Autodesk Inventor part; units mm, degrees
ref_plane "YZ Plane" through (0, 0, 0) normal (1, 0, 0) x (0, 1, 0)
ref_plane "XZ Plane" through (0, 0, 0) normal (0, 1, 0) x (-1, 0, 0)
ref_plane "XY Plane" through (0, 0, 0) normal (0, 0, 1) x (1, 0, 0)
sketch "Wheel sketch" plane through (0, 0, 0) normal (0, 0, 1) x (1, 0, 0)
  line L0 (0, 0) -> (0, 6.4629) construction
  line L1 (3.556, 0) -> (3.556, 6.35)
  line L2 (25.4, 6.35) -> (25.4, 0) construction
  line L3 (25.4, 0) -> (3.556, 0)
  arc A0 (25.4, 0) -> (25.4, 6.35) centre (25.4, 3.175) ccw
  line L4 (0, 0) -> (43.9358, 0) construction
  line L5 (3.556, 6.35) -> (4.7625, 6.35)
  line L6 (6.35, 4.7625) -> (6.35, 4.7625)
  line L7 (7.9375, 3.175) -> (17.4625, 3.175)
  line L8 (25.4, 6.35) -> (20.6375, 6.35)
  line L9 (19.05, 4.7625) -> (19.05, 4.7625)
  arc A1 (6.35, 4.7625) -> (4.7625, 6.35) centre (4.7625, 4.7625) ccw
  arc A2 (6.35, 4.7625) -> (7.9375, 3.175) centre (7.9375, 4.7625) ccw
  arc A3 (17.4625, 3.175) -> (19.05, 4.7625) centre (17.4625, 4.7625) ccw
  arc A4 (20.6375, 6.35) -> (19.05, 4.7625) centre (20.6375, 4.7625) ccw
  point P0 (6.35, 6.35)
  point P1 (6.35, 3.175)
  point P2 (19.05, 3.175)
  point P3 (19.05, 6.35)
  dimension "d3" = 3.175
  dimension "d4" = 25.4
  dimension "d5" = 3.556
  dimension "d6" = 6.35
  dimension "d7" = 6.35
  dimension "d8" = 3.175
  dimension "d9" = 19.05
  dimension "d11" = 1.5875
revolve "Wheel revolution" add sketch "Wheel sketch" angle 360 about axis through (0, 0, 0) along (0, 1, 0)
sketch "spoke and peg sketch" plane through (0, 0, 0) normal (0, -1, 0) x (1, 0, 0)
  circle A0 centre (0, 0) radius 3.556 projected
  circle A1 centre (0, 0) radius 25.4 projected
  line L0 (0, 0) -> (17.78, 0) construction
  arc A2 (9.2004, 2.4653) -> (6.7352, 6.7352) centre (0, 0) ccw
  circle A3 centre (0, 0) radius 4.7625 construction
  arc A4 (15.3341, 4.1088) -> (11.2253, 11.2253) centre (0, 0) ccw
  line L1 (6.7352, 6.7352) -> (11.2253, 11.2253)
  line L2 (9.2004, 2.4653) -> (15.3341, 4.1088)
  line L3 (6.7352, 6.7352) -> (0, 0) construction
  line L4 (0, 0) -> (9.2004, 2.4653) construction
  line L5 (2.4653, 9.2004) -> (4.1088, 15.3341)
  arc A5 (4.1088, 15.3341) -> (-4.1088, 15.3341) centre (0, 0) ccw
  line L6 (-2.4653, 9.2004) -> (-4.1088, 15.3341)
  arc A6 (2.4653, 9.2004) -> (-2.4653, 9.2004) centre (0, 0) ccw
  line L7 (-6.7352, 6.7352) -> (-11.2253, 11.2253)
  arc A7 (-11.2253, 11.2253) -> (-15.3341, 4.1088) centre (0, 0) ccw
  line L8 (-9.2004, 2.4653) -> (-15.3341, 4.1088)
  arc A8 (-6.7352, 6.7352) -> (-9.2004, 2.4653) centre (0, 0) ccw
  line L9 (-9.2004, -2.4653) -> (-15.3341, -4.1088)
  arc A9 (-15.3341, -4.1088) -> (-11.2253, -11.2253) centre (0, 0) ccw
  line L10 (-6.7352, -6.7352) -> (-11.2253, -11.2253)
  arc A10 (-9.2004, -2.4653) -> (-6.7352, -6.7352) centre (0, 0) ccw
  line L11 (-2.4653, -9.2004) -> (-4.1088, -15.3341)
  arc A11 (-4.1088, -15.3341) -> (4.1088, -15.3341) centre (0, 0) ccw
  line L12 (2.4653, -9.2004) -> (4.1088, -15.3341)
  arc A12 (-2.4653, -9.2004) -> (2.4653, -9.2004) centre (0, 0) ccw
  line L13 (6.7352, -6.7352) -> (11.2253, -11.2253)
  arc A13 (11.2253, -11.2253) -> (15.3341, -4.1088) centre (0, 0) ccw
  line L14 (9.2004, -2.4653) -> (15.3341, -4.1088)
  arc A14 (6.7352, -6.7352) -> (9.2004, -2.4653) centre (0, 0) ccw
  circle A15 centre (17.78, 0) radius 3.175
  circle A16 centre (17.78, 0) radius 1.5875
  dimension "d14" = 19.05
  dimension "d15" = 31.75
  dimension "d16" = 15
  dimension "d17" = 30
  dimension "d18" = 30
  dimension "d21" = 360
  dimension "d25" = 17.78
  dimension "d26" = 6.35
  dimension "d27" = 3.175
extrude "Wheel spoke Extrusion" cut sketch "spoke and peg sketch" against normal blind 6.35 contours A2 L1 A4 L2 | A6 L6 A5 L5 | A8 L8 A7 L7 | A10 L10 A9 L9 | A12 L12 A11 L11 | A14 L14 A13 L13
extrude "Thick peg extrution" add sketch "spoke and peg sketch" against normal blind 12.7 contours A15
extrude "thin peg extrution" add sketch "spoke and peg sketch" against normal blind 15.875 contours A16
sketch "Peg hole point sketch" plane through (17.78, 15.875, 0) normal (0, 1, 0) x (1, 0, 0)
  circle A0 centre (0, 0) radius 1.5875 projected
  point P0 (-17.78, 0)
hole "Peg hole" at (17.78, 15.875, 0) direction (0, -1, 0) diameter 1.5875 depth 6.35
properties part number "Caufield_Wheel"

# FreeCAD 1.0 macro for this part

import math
import FreeCAD as App
import Part
import Sketcher

V = App.Vector
Q = App.Units.Quantity

doc = App.newDocument("Part")
body = doc.addObject("PartDesign::Body", "Body")

sketch1 = body.newObject("Sketcher::SketchObject", "Sketch")
sketch1.AttachmentSupport = (doc.getObject("XY_Plane"), [""])
sketch1.MapMode = "FlatFace"
sketch1.addGeometry([
    Part.LineSegment(V(3.556, 6.35, 0), V(3.556, 0, 0)),
    Part.LineSegment(V(3.556, 0, 0), V(25.4, 0, 0)),
    Part.ArcOfCircle(Part.Circle(V(25.4, 3.175, 0), V(0, 0, 1), 3.175), math.radians(-90), math.radians(90)),
    Part.LineSegment(V(25.4, 6.35, 0), V(20.6375, 6.35, 0)),
    Part.ArcOfCircle(Part.Circle(V(20.6375, 4.7625, 0), V(0, 0, 1), 1.5875), math.radians(90), math.radians(180)),
    Part.ArcOfCircle(Part.Circle(V(17.4625, 4.7625, 0), V(0, 0, 1), 1.5875), math.radians(-90), math.radians(0)),
    Part.LineSegment(V(17.4625, 3.175, 0), V(7.9375, 3.175, 0)),
    Part.ArcOfCircle(Part.Circle(V(7.9375, 4.7625, 0), V(0, 0, 1), 1.5875), math.radians(180), math.radians(270)),
    Part.ArcOfCircle(Part.Circle(V(4.7625, 4.7625, 0), V(0, 0, 1), 1.5875), math.radians(0), math.radians(90)),
    Part.LineSegment(V(4.7625, 6.35, 0), V(3.556, 6.35, 0)),
], False)
sketch1.addConstraint([
    Sketcher.Constraint("Coincident", 0, 2, 1, 1),
    Sketcher.Constraint("Tangent", 1, 2, 2, 1),
    Sketcher.Constraint("Tangent", 2, 2, 3, 1),
    Sketcher.Constraint("Tangent", 3, 2, 4, 1),
    Sketcher.Constraint("Tangent", 4, 2, 5, 2),
    Sketcher.Constraint("Tangent", 5, 1, 6, 1),
    Sketcher.Constraint("Tangent", 6, 2, 7, 2),
    Sketcher.Constraint("Tangent", 7, 1, 8, 1),
    Sketcher.Constraint("Tangent", 8, 2, 9, 1),
    Sketcher.Constraint("Coincident", 9, 2, 0, 1),
    Sketcher.Constraint("Vertical", 0),
    Sketcher.Constraint("Horizontal", 1),
    Sketcher.Constraint("Horizontal", 3),
    Sketcher.Constraint("Horizontal", 6),
    Sketcher.Constraint("Horizontal", 9),
    Sketcher.Constraint("Equal", 4, 5),
    Sketcher.Constraint("Equal", 5, 7),
    Sketcher.Constraint("Equal", 7, 8),
    Sketcher.Constraint("PointOnObject", 0, 2, -1),
    Sketcher.Constraint("Horizontal", 4, 3, 5, 3),
    Sketcher.Constraint("Horizontal", 7, 3, 8, 3),
    Sketcher.Constraint("Horizontal", 2, 3, 5, 1),
    Sketcher.Constraint("DistanceX", -1, 1, 2, 3, Q("1 in")),
    Sketcher.Constraint("Radius", 2, Q("0.125 in")),
    Sketcher.Constraint("DistanceX", -1, 1, 0, 2, Q("0.14 in")),
    Sketcher.Constraint("DistanceX", -1, 1, 4, 2, Q("0.75 in")),
    Sketcher.Constraint("DistanceX", -1, 1, 7, 1, Q("0.25 in")),
])
revolution = body.newObject("PartDesign::Revolution", "Revolution")
revolution.Profile = sketch1
revolution.ReferenceAxis = (sketch1, ["V_Axis"])
revolution.Angle = 360

sketch2 = body.newObject("Sketcher::SketchObject", "Sketch001")
sketch2.AttachmentSupport = (doc.getObject("XZ_Plane"), [""])
sketch2.MapMode = "FlatFace"
sketch2.addGeometry([
    Part.ArcOfCircle(Part.Circle(V(0, 0, 0), V(0, 0, 1), 9.525011), math.radians(15.00035), math.radians(45)),
    Part.LineSegment(V(9.2004, 2.4653, 0), V(15.3341, 4.1088, 0)),
    Part.ArcOfCircle(Part.Circle(V(0, 0, 0), V(0, 0, 1), 15.874972), math.radians(15.00014), math.radians(45)),
    Part.LineSegment(V(11.2253, 11.2253, 0), V(6.7352, 6.7352, 0)),
    Part.ArcOfCircle(Part.Circle(V(0, 0, 0), V(0, 0, 1), 9.524971), math.radians(74.99965), math.radians(105.00035)),
    Part.LineSegment(V(2.4653, 9.2004, 0), V(4.1088, 15.3341, 0)),
    Part.ArcOfCircle(Part.Circle(V(0, 0, 0), V(0, 0, 1), 15.875039), math.radians(74.99986), math.radians(105.00014)),
    Part.LineSegment(V(-4.1088, 15.3341, 0), V(-2.4653, 9.2004, 0)),
    Part.ArcOfCircle(Part.Circle(V(0, 0, 0), V(0, 0, 1), 9.524971), math.radians(135), math.radians(164.99965)),
    Part.LineSegment(V(-6.7352, 6.7352, 0), V(-11.2253, 11.2253, 0)),
    Part.ArcOfCircle(Part.Circle(V(0, 0, 0), V(0, 0, 1), 15.875039), math.radians(135), math.radians(164.99986)),
    Part.LineSegment(V(-15.3341, 4.1088, 0), V(-9.2004, 2.4653, 0)),
    Part.ArcOfCircle(Part.Circle(V(0, 0, 0), V(0, 0, 1), 9.525011), math.radians(-164.99965), math.radians(-135)),
    Part.LineSegment(V(-9.2004, -2.4653, 0), V(-15.3341, -4.1088, 0)),
    Part.ArcOfCircle(Part.Circle(V(0, 0, 0), V(0, 0, 1), 15.874972), math.radians(-164.99986), math.radians(-135)),
    Part.LineSegment(V(-11.2253, -11.2253, 0), V(-6.7352, -6.7352, 0)),
    Part.ArcOfCircle(Part.Circle(V(0, 0, 0), V(0, 0, 1), 9.524971), math.radians(-105.00035), math.radians(-74.99965)),
    Part.LineSegment(V(-2.4653, -9.2004, 0), V(-4.1088, -15.3341, 0)),
    Part.ArcOfCircle(Part.Circle(V(0, 0, 0), V(0, 0, 1), 15.875039), math.radians(-105.00014), math.radians(-74.99986)),
    Part.LineSegment(V(4.1088, -15.3341, 0), V(2.4653, -9.2004, 0)),
    Part.ArcOfCircle(Part.Circle(V(0, 0, 0), V(0, 0, 1), 9.524971), math.radians(-45), math.radians(-15.00035)),
    Part.LineSegment(V(6.7352, -6.7352, 0), V(11.2253, -11.2253, 0)),
    Part.ArcOfCircle(Part.Circle(V(0, 0, 0), V(0, 0, 1), 15.875039), math.radians(-45), math.radians(-15.00014)),
    Part.LineSegment(V(15.3341, -4.1088, 0), V(9.2004, -2.4653, 0)),
], False)
sketch2.addConstraint([
    Sketcher.Constraint("Coincident", 0, 1, 1, 1),
    Sketcher.Constraint("Coincident", 1, 2, 2, 1),
    Sketcher.Constraint("Coincident", 2, 2, 3, 1),
    Sketcher.Constraint("Coincident", 3, 2, 0, 2),
    Sketcher.Constraint("Coincident", 4, 1, 5, 1),
    Sketcher.Constraint("Coincident", 5, 2, 6, 1),
    Sketcher.Constraint("Coincident", 6, 2, 7, 1),
    Sketcher.Constraint("Coincident", 7, 2, 4, 2),
    Sketcher.Constraint("Coincident", 8, 1, 9, 1),
    Sketcher.Constraint("Coincident", 9, 2, 10, 1),
    Sketcher.Constraint("Coincident", 10, 2, 11, 1),
    Sketcher.Constraint("Coincident", 11, 2, 8, 2),
    Sketcher.Constraint("Coincident", 12, 1, 13, 1),
    Sketcher.Constraint("Coincident", 13, 2, 14, 1),
    Sketcher.Constraint("Coincident", 14, 2, 15, 1),
    Sketcher.Constraint("Coincident", 15, 2, 12, 2),
    Sketcher.Constraint("Coincident", 16, 1, 17, 1),
    Sketcher.Constraint("Coincident", 17, 2, 18, 1),
    Sketcher.Constraint("Coincident", 18, 2, 19, 1),
    Sketcher.Constraint("Coincident", 19, 2, 16, 2),
    Sketcher.Constraint("Coincident", 20, 1, 21, 1),
    Sketcher.Constraint("Coincident", 21, 2, 22, 1),
    Sketcher.Constraint("Coincident", 22, 2, 23, 1),
    Sketcher.Constraint("Coincident", 23, 2, 20, 2),
    Sketcher.Constraint("Coincident", 0, 3, -1, 1),
    Sketcher.Constraint("Coincident", 2, 3, -1, 1),
    Sketcher.Constraint("Coincident", 4, 3, -1, 1),
    Sketcher.Constraint("Coincident", 6, 3, -1, 1),
    Sketcher.Constraint("Coincident", 8, 3, -1, 1),
    Sketcher.Constraint("Coincident", 10, 3, -1, 1),
    Sketcher.Constraint("Coincident", 12, 3, -1, 1),
    Sketcher.Constraint("Coincident", 14, 3, -1, 1),
    Sketcher.Constraint("Coincident", 16, 3, -1, 1),
    Sketcher.Constraint("Coincident", 18, 3, -1, 1),
    Sketcher.Constraint("Coincident", 20, 3, -1, 1),
    Sketcher.Constraint("Coincident", 22, 3, -1, 1),
    Sketcher.Constraint("Equal", 0, 4),
    Sketcher.Constraint("Equal", 2, 6),
    Sketcher.Constraint("Equal", 4, 8),
    Sketcher.Constraint("Equal", 6, 10),
    Sketcher.Constraint("Equal", 8, 12),
    Sketcher.Constraint("Equal", 10, 14),
    Sketcher.Constraint("Equal", 12, 16),
    Sketcher.Constraint("Equal", 14, 18),
    Sketcher.Constraint("Equal", 16, 20),
    Sketcher.Constraint("Equal", 18, 22),
    Sketcher.Constraint("Perpendicular", 1, 7),
    Sketcher.Constraint("Perpendicular", 3, 9),
    Sketcher.Constraint("Perpendicular", 5, 11),
    Sketcher.Constraint("Perpendicular", 7, 13),
    Sketcher.Constraint("Perpendicular", 9, 15),
    Sketcher.Constraint("Perpendicular", 11, 17),
    Sketcher.Constraint("Perpendicular", 13, 19),
    Sketcher.Constraint("Perpendicular", 15, 21),
    Sketcher.Constraint("Perpendicular", 17, 23),
    Sketcher.Constraint("Horizontal", 5, 2, 6, 2),
    Sketcher.Constraint("Horizontal", 4, 1, 7, 2),
    Sketcher.Constraint("Horizontal", 3, 2, 8, 1),
    Sketcher.Constraint("Horizontal", 2, 2, 9, 2),
    Sketcher.Constraint("Horizontal", 1, 2, 10, 2),
    Sketcher.Constraint("Horizontal", 17, 2, 18, 2),
    Sketcher.Constraint("Horizontal", 15, 2, 20, 1),
    Sketcher.Constraint("Horizontal", 13, 2, 22, 2),
    Sketcher.Constraint("Vertical", 11, 2, 12, 1),
    Sketcher.Constraint("Vertical", 9, 2, 14, 2),
    Sketcher.Constraint("Vertical", 7, 2, 16, 1),
    Sketcher.Constraint("Angle", 1, Q("14.9998 deg")),
    Sketcher.Constraint("Radius", 0, Q("0.375 in")),
    Sketcher.Constraint("Radius", 2, Q("0.625 in")),
    Sketcher.Constraint("DistanceX", 9, 2, 4, 1, Q("0.539 in")),
    Sketcher.Constraint("DistanceY", 14, 2, 11, 2, Q("0.539 in")),
    Sketcher.Constraint("DistanceX", -1, 1, 1, 2, Q("0.6037 in")),
])
pocket1 = body.newObject("PartDesign::Pocket", "Pocket")
pocket1.Profile = sketch2
pocket1.Length = Q("0.25 in")

sketch3 = body.newObject("Sketcher::SketchObject", "Sketch002")
sketch3.AttachmentSupport = (doc.getObject("XZ_Plane"), [""])
sketch3.MapMode = "FlatFace"
sketch3.addGeometry([
    Part.Circle(V(17.78, 0, 0), V(0, 0, 1), 3.175),
    Part.Circle(V(17.78, 0, 0), V(0, 0, 1), 1.5875),
], False)
sketch3.addConstraint([
    Sketcher.Constraint("Coincident", 1, 3, 0, 3),
    Sketcher.Constraint("PointOnObject", 0, 3, -1),
    Sketcher.Constraint("Diameter", 0, Q("0.25 in")),
    Sketcher.Constraint("Diameter", 1, Q("0.125 in")),
    Sketcher.Constraint("DistanceX", -1, 1, 0, 3, Q("0.7 in")),
])
pad1 = body.newObject("PartDesign::Pad", "Pad")
pad1.Profile = sketch3
pad1.Length = Q("0.5 in")
pad1.Reversed = True

sketch4 = body.newObject("Sketcher::SketchObject", "Sketch003")
sketch4.AttachmentSupport = (doc.getObject("XZ_Plane"), [""])
sketch4.MapMode = "FlatFace"
sketch4.addGeometry(Part.Circle(V(17.78, 0, 0), V(0, 0, 1), 1.5875), False)
sketch4.addConstraint([
    Sketcher.Constraint("PointOnObject", 0, 3, -1),
    Sketcher.Constraint("Diameter", 0, Q("0.125 in")),
    Sketcher.Constraint("DistanceX", -1, 1, 0, 3, Q("0.7 in")),
])
pad2 = body.newObject("PartDesign::Pad", "Pad001")
pad2.Profile = sketch4
pad2.Length = Q("0.625 in")
pad2.Reversed = True

sketch5 = body.newObject("Sketcher::SketchObject", "Sketch004")
sketch5.AttachmentSupport = (doc.getObject("XZ_Plane"), [""])
sketch5.MapMode = "FlatFace"
sketch5.AttachmentOffset = App.Placement(V(0, 0, -0.625 * 25.4), App.Rotation())
sketch5.addGeometry(Part.Circle(V(17.78, 0, 0), V(0, 0, 1), 0.79375), False)
sketch5.addConstraint([
    Sketcher.Constraint("PointOnObject", 0, 3, -1),
    Sketcher.Constraint("Diameter", 0, Q("0.0625 in")),
    Sketcher.Constraint("DistanceX", -1, 1, 0, 3, Q("0.7 in")),
])
doc.recompute()
hole = body.newObject("PartDesign::Hole", "Hole")
hole.Profile = sketch5
hole.ThreadType = "None"
hole.Diameter = Q("0.0625 in")
hole.DepthType = "Dimension"
hole.Depth = Q("0.25 in")
hole.DrillPoint = "Flat"
hole.Reversed = True

doc.recompute()
